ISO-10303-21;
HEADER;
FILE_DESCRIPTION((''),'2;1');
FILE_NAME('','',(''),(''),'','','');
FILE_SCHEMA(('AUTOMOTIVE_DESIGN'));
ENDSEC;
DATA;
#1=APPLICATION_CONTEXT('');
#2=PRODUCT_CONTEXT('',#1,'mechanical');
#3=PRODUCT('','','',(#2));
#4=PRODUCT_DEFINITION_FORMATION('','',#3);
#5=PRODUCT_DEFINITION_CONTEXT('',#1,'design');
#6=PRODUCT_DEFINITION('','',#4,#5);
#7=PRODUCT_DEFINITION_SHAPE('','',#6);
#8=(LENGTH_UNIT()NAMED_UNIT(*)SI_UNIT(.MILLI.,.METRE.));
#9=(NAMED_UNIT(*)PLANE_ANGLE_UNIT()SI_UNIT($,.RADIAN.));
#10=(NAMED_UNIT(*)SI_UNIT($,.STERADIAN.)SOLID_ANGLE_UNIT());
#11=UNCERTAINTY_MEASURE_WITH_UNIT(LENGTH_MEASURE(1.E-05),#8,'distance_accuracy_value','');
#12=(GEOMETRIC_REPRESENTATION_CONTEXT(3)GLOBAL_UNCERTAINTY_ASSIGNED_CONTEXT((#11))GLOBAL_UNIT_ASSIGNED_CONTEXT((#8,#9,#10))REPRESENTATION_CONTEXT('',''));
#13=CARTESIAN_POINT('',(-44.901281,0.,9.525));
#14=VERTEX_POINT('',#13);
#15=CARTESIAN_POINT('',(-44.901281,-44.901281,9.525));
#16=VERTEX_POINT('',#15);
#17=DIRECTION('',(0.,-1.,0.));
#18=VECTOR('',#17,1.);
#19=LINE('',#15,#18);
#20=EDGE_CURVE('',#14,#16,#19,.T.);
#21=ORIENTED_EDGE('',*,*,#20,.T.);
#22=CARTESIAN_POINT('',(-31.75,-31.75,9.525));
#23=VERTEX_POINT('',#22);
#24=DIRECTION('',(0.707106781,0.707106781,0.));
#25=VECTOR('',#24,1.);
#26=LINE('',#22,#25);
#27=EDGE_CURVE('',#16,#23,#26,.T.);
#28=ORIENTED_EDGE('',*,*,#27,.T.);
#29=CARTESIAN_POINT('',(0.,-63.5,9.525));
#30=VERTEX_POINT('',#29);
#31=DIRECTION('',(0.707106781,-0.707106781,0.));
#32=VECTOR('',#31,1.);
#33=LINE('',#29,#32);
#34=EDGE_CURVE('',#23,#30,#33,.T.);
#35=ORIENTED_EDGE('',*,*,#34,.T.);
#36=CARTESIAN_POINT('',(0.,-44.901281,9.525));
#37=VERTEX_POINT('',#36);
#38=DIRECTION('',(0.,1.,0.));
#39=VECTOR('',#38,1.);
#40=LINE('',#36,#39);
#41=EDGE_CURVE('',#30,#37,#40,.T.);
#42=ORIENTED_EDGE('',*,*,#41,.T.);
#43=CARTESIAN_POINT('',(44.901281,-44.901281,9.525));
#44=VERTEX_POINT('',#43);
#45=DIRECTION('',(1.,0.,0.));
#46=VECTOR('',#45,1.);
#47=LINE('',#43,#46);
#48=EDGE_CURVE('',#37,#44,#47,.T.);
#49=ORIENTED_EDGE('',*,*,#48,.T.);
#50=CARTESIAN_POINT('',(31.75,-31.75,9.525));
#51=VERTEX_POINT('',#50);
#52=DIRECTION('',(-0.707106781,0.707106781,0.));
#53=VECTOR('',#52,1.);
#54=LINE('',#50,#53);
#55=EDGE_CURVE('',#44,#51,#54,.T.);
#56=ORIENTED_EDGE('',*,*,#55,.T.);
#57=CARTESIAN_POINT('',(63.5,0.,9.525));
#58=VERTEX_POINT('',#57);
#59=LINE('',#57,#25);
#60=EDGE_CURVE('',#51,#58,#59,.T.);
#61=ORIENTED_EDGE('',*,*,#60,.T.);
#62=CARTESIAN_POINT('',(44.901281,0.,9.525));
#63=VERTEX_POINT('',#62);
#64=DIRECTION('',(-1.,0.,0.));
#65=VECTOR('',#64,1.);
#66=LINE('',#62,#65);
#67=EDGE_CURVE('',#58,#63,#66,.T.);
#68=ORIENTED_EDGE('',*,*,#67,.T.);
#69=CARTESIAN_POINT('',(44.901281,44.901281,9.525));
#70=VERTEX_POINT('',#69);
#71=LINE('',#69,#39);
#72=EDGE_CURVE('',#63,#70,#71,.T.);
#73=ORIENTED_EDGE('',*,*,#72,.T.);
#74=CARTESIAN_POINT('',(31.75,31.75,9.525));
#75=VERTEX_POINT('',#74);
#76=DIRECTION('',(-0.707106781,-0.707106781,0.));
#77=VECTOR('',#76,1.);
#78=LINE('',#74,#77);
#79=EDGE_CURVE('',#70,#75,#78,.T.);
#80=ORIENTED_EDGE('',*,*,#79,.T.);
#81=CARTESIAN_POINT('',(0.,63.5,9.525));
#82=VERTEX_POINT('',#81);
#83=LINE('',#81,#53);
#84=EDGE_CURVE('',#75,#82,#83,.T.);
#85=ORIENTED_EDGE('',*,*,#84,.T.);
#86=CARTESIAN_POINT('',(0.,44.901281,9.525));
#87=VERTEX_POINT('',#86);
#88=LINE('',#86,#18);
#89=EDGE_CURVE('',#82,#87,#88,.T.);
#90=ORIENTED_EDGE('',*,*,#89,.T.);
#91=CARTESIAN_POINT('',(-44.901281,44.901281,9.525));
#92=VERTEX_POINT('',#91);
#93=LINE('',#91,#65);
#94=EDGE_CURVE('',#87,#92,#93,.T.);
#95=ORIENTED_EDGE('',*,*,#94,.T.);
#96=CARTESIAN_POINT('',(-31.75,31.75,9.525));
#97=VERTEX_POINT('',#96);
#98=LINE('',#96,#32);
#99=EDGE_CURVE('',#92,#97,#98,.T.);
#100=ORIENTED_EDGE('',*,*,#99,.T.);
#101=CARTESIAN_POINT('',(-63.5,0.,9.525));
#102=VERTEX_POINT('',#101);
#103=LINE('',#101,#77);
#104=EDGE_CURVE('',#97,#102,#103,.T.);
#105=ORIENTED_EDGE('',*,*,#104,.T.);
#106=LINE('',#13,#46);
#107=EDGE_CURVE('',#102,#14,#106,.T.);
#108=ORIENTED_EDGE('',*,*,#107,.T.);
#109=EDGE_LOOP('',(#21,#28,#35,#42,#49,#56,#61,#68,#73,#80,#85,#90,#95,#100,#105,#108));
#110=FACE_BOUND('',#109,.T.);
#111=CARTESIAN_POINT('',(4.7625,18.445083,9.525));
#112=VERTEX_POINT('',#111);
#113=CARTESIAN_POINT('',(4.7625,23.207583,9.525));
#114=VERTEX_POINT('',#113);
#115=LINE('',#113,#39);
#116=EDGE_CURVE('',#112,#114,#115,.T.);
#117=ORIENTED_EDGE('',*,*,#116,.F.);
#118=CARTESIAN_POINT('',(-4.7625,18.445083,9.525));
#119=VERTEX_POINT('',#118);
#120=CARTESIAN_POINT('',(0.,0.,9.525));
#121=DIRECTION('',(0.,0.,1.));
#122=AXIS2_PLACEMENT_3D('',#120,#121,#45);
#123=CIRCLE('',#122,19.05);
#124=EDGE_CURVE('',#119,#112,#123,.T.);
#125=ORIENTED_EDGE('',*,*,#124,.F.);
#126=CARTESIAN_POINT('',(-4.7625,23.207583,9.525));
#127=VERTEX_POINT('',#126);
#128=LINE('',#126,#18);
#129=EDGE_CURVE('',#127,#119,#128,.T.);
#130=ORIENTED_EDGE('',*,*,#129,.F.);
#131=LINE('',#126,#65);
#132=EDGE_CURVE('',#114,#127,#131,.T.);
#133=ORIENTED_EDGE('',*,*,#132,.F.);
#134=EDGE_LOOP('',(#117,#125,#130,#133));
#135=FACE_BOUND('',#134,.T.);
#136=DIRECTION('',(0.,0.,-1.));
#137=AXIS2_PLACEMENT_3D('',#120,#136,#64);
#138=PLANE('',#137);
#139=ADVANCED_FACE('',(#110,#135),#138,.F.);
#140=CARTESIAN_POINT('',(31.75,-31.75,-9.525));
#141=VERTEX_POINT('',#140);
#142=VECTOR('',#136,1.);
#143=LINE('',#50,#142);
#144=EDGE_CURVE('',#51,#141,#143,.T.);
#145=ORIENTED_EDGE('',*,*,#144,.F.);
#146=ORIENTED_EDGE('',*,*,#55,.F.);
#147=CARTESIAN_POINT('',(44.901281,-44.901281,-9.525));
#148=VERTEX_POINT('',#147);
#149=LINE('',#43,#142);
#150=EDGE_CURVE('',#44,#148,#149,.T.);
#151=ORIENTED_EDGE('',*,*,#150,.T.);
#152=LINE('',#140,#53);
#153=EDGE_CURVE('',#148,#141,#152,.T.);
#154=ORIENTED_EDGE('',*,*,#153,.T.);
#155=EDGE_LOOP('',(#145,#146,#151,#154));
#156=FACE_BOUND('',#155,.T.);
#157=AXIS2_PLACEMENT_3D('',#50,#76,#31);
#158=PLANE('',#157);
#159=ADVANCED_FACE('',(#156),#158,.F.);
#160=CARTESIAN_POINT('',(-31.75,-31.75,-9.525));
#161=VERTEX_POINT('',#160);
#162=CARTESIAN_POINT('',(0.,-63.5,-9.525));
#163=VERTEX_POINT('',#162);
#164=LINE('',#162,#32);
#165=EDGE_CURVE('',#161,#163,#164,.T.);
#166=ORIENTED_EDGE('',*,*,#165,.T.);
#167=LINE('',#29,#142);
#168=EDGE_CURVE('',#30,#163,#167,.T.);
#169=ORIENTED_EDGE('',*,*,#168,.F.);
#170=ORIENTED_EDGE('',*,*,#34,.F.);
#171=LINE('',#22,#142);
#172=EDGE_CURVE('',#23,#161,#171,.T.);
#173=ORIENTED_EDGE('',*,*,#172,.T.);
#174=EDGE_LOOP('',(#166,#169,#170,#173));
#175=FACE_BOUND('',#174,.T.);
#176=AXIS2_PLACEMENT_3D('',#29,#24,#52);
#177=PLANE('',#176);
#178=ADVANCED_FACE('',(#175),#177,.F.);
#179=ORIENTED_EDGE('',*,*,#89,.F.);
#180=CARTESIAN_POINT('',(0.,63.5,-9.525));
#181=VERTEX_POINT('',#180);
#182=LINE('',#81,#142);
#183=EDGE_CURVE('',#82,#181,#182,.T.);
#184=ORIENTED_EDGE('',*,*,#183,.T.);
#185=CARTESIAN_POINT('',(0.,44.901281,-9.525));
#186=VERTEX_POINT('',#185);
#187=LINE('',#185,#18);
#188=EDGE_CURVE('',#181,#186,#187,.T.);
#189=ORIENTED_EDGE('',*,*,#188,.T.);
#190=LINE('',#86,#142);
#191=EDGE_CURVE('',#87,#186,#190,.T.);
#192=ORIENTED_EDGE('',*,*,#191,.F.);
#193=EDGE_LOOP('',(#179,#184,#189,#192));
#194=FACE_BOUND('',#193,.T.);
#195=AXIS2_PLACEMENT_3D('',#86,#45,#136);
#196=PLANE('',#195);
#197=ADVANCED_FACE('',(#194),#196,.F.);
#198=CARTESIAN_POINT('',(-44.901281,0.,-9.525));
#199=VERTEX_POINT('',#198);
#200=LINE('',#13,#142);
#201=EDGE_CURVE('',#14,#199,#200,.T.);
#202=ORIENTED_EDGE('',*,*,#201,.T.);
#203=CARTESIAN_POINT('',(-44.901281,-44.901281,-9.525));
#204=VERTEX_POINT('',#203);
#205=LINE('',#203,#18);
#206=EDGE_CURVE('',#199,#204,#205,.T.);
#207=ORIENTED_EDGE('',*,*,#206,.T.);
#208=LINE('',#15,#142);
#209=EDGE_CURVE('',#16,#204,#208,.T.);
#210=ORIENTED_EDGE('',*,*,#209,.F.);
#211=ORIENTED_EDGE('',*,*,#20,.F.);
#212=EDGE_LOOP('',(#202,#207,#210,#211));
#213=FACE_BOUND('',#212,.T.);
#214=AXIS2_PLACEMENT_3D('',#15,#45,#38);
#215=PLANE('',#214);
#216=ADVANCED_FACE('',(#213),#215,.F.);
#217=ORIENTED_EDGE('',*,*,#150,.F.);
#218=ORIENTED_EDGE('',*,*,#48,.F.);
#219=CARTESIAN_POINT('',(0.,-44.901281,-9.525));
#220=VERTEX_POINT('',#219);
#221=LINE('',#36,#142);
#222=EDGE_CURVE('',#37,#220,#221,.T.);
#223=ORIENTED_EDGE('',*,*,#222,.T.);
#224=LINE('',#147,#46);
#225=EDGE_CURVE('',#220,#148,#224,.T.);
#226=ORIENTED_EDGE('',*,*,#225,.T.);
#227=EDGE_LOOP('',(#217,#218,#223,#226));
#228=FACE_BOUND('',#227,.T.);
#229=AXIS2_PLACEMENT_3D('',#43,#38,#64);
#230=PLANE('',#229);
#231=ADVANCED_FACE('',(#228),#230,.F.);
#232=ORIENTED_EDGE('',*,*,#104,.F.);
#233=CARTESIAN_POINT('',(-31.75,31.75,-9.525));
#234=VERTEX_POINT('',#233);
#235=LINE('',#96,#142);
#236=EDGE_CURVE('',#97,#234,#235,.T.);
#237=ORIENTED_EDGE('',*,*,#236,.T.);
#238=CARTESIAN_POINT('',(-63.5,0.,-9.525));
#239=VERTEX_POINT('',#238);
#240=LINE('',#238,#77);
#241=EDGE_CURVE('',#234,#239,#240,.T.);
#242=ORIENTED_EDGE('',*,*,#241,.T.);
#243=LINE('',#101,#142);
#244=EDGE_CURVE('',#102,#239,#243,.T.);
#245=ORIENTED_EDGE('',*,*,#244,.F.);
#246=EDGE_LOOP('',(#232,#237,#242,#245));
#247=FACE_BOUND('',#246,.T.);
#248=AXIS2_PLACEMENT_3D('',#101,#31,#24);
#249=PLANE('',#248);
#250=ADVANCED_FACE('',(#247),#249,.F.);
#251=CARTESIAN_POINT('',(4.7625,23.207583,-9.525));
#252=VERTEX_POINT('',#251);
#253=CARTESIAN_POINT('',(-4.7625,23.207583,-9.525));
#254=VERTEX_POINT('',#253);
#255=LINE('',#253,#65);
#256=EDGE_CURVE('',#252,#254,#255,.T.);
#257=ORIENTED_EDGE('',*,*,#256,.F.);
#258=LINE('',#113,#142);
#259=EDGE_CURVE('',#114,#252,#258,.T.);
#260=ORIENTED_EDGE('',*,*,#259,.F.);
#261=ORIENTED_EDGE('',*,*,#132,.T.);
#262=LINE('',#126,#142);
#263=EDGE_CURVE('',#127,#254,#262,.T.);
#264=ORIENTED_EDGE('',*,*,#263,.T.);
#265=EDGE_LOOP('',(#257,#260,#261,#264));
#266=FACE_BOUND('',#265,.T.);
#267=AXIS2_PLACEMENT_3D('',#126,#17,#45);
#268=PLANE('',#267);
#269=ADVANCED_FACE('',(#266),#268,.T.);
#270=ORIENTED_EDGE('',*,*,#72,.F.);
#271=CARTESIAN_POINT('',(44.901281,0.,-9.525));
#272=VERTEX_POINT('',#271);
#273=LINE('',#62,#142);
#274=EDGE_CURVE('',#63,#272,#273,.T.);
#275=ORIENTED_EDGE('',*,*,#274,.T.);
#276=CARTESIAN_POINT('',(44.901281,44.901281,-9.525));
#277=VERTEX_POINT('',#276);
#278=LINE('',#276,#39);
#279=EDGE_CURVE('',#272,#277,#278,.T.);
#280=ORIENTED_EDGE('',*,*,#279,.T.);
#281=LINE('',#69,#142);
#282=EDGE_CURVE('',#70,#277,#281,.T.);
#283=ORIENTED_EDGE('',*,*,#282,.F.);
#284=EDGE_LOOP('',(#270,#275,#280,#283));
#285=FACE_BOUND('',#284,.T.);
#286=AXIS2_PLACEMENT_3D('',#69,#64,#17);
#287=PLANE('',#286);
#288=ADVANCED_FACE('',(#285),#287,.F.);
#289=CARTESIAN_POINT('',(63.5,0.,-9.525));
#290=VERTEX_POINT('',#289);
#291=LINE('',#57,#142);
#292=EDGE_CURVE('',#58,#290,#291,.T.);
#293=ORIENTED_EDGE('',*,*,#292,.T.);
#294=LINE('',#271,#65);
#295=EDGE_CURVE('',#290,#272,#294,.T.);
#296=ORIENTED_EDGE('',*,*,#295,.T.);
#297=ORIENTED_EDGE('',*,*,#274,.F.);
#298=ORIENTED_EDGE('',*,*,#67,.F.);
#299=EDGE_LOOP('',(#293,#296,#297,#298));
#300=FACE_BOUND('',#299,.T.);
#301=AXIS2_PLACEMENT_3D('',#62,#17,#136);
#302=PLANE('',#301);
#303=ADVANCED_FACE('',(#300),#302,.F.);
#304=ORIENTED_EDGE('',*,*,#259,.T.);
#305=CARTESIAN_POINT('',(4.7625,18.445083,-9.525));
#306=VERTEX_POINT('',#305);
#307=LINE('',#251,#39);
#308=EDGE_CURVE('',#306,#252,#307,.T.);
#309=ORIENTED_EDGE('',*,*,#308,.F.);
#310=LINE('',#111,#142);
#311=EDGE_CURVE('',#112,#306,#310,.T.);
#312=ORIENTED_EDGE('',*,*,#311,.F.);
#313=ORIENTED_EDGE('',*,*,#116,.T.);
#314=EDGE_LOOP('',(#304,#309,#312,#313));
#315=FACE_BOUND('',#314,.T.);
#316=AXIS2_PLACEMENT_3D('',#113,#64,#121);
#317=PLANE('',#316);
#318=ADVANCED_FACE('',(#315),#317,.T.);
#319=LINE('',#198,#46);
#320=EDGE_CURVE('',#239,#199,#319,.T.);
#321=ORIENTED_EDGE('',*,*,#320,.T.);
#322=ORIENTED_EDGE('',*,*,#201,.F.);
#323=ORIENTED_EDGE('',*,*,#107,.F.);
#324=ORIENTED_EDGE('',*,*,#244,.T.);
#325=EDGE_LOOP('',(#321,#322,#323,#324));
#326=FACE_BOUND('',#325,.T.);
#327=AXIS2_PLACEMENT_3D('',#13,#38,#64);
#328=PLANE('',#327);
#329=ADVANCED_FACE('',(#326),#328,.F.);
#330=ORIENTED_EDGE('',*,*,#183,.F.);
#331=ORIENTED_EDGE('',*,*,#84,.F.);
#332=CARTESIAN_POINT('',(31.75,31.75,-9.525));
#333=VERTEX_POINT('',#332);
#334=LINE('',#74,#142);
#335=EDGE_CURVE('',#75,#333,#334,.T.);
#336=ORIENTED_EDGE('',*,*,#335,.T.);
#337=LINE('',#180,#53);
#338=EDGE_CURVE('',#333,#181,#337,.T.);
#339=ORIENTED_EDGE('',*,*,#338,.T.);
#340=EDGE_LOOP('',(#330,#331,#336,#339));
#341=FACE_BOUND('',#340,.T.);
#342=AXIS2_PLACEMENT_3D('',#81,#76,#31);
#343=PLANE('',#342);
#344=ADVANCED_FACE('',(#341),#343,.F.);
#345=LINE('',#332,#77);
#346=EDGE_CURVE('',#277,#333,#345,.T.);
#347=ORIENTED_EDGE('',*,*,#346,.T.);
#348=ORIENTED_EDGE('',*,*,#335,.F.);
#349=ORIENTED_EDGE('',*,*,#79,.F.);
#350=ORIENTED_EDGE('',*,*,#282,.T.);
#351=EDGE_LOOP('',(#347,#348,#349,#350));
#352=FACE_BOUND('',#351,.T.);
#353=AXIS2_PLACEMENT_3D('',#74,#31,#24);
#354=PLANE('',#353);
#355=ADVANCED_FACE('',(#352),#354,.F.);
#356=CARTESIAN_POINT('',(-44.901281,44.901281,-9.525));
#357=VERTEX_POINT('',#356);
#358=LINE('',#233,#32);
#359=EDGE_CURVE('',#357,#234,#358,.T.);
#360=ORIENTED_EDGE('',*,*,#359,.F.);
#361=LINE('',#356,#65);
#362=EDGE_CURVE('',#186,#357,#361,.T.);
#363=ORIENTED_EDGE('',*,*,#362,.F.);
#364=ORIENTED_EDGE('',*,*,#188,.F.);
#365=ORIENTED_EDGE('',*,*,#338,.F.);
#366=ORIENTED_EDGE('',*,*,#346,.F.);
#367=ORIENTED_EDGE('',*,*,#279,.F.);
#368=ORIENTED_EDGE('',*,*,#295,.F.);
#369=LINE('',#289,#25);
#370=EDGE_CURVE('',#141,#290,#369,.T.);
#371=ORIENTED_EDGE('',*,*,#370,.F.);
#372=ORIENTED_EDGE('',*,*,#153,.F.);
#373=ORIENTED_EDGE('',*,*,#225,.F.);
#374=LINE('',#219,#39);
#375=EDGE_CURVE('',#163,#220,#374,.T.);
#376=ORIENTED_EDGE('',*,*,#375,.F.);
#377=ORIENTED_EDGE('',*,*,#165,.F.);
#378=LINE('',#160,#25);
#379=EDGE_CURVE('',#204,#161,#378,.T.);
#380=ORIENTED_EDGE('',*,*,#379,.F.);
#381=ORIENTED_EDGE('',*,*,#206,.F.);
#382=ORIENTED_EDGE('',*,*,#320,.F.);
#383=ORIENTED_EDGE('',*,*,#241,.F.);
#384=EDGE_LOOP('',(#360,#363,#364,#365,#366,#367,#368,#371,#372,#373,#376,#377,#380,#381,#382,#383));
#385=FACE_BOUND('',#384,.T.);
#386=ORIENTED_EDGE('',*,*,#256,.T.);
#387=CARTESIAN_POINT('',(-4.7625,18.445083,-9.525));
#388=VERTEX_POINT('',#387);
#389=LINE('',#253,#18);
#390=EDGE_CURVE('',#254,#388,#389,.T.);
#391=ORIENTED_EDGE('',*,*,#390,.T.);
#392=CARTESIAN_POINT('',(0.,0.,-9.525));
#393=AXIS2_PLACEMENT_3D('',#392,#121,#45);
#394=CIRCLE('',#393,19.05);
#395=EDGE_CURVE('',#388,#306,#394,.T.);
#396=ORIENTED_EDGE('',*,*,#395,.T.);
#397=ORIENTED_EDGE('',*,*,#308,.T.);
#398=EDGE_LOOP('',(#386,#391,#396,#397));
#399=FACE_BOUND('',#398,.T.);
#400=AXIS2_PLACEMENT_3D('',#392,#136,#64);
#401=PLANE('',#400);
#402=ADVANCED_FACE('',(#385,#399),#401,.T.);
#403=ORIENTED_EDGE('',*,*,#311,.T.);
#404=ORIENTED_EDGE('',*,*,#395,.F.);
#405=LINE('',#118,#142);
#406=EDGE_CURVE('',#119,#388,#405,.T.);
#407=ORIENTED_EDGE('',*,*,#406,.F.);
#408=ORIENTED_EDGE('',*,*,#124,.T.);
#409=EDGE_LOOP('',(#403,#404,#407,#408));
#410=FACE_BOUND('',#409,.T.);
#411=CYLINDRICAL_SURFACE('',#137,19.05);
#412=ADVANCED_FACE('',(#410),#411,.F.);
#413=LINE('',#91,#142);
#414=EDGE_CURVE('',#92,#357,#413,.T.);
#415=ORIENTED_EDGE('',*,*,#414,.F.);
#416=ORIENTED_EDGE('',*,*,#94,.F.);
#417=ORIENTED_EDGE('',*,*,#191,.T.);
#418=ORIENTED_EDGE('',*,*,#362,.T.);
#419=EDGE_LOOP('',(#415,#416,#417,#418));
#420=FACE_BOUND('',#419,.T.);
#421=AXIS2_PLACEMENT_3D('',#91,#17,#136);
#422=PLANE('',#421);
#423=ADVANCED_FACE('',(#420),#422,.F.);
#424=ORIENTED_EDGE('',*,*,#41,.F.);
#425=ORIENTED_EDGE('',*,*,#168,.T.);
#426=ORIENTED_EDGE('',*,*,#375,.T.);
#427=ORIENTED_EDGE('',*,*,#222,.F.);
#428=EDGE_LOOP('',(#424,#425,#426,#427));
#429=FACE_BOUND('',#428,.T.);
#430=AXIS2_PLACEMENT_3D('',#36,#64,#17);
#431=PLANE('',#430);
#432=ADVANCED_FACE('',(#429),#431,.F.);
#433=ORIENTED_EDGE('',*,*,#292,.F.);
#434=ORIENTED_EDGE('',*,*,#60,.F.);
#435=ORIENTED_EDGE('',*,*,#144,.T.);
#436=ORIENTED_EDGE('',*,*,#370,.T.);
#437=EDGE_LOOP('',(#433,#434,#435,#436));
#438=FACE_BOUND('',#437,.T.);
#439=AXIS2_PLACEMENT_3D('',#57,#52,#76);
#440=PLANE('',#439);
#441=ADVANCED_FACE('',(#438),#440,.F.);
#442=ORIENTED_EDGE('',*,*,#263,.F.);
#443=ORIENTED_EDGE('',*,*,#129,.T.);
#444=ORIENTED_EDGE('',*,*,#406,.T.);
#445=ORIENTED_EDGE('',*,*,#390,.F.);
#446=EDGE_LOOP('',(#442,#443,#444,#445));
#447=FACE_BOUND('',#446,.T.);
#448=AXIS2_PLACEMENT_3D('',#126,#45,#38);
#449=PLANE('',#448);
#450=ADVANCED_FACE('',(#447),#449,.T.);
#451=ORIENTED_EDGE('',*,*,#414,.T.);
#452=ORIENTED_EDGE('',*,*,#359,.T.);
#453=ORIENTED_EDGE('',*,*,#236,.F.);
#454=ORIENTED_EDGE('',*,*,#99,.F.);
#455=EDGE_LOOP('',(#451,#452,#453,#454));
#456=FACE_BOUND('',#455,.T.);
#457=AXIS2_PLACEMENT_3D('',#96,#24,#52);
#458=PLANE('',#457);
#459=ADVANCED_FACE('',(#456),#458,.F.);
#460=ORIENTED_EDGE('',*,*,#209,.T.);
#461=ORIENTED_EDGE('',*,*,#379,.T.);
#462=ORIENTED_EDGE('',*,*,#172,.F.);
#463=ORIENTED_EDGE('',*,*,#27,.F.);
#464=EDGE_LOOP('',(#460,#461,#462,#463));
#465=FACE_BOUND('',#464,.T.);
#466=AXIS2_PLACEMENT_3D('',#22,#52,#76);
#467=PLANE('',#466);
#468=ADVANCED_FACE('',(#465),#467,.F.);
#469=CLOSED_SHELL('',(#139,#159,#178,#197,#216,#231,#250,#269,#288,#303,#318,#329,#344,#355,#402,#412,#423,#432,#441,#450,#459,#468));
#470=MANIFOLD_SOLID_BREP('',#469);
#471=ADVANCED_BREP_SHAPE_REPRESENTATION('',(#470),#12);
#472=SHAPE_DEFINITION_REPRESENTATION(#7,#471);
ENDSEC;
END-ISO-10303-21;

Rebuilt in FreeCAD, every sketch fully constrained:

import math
import FreeCAD as App
import Part
import Sketcher
Q = App.Units.Quantity


def add_polygon(sketch, points):
    """Adds a closed chain of lines whose ends are joined by coincident constraints."""
    first, n = sketch.GeometryCount, len(points)
    for a, b in zip(points, points[1:] + points[:1]):
        sketch.addGeometry(Part.LineSegment(App.Vector(*a, 0), App.Vector(*b, 0)), False)
    for i in range(n):
        sketch.addConstraint(Sketcher.Constraint("Coincident", first + i, 2, first + (i + 1) % n, 1))

doc = App.newDocument("Part")
body = doc.addObject("PartDesign::Body", "Body")

sketch1 = doc.addObject("Sketcher::SketchObject", "Sketch")
body.addObject(sketch1)
sketch1.AttachmentSupport = (doc.XY_Plane, [""])
sketch1.MapMode = "FlatFace"
add_polygon(sketch1, [(31.8, 31.8), (0, 63.5), (0, 44.9), (-44.9, 44.9), (-31.8, 31.8), (-63.5, 0), (-44.9, 0), (-44.9, -44.9), (-31.8, -31.8), (0, -63.5), (0, -44.9), (44.9, -44.9), (31.8, -31.8), (63.5, 0), (44.9, 0), (44.9, 44.9)])
sketch1.addGeometry(Part.LineSegment(App.Vector(-4.8, 23.2, 0), App.Vector(4.8, 23.2, 0)), False)
sketch1.addGeometry(Part.LineSegment(App.Vector(4.8, 23.2, 0), App.Vector(4.8, 18.4, 0)), False)
sketch1.addGeometry(Part.ArcOfCircle(Part.Circle(App.Vector(0, 0, 0), App.Vector(0, 0, 1), 19.1), math.radians(104), math.radians(436)), False)
sketch1.addGeometry(Part.LineSegment(App.Vector(-4.8, 18.4, 0), App.Vector(-4.8, 23.2, 0)), False)
sketch1.addConstraint([
    Sketcher.Constraint("Coincident", 16, 2, 17, 1),
    Sketcher.Constraint("Coincident", 17, 2, 18, 2),
    Sketcher.Constraint("Coincident", 18, 1, 19, 1),
    Sketcher.Constraint("Coincident", 19, 2, 16, 1),
    Sketcher.Constraint("Vertical", 1),
    Sketcher.Constraint("Horizontal", 2),
    Sketcher.Constraint("Horizontal", 5),
    Sketcher.Constraint("Vertical", 6),
    Sketcher.Constraint("Vertical", 9),
    Sketcher.Constraint("Horizontal", 10),
    Sketcher.Constraint("Horizontal", 13),
    Sketcher.Constraint("Vertical", 14),
    Sketcher.Constraint("Horizontal", 16),
    Sketcher.Constraint("Vertical", 17),
    Sketcher.Constraint("Vertical", 19),
    Sketcher.Constraint("Coincident", 18, 3, -1, 1),
    Sketcher.Constraint("Symmetric", 0, 2, 8, 2, -1, 1),
    Sketcher.Constraint("Symmetric", 2, 2, 10, 2, -1, 1),
    Sketcher.Constraint("Symmetric", 3, 2, 11, 2, -1, 1),
    Sketcher.Constraint("Symmetric", 4, 2, 12, 2, -1, 1),
    Sketcher.Constraint("Symmetric", 6, 2, 14, 2, -1, 1),
    Sketcher.Constraint("Symmetric", 7, 2, 15, 2, -1, 1),
    Sketcher.Constraint("Symmetric", 6, 2, 10, 2, -2),
    Sketcher.Constraint("Symmetric", 7, 2, 11, 2, -2),
    Sketcher.Constraint("PointOnObject", 0, 2, -2),
    Sketcher.Constraint("PointOnObject", 4, 2, -1),
    Sketcher.Constraint("Parallel", 0, 3),
    Sketcher.Constraint("Perpendicular", 3, 4),
    Sketcher.Constraint("Parallel", 4, 7),
    Sketcher.Constraint("Horizontal", 17, 2, 18, 1),
    Sketcher.Constraint("Equal", 13, 1),
    Sketcher.Constraint("Radius", 18, Q("0.75 in")),
    Sketcher.Constraint("DistanceY", -1, 1, 0, 2, Q("2.5 in")),
    Sketcher.Constraint("DistanceX", 16, 1, 16, 2, Q("0.375 in")),
    Sketcher.Constraint("DistanceY", 17, 2, 17, 1, Q("0.1875 in")),
    Sketcher.Constraint("DistanceX", 2, 2, 2, 1, 44.901281),
])
pad1 = doc.addObject("PartDesign::Pad", "Pad")
body.addObject(pad1)
pad1.Profile = sketch1
pad1.Length = Q("0.75 in")
pad1.Midplane = True

doc.recompute()
